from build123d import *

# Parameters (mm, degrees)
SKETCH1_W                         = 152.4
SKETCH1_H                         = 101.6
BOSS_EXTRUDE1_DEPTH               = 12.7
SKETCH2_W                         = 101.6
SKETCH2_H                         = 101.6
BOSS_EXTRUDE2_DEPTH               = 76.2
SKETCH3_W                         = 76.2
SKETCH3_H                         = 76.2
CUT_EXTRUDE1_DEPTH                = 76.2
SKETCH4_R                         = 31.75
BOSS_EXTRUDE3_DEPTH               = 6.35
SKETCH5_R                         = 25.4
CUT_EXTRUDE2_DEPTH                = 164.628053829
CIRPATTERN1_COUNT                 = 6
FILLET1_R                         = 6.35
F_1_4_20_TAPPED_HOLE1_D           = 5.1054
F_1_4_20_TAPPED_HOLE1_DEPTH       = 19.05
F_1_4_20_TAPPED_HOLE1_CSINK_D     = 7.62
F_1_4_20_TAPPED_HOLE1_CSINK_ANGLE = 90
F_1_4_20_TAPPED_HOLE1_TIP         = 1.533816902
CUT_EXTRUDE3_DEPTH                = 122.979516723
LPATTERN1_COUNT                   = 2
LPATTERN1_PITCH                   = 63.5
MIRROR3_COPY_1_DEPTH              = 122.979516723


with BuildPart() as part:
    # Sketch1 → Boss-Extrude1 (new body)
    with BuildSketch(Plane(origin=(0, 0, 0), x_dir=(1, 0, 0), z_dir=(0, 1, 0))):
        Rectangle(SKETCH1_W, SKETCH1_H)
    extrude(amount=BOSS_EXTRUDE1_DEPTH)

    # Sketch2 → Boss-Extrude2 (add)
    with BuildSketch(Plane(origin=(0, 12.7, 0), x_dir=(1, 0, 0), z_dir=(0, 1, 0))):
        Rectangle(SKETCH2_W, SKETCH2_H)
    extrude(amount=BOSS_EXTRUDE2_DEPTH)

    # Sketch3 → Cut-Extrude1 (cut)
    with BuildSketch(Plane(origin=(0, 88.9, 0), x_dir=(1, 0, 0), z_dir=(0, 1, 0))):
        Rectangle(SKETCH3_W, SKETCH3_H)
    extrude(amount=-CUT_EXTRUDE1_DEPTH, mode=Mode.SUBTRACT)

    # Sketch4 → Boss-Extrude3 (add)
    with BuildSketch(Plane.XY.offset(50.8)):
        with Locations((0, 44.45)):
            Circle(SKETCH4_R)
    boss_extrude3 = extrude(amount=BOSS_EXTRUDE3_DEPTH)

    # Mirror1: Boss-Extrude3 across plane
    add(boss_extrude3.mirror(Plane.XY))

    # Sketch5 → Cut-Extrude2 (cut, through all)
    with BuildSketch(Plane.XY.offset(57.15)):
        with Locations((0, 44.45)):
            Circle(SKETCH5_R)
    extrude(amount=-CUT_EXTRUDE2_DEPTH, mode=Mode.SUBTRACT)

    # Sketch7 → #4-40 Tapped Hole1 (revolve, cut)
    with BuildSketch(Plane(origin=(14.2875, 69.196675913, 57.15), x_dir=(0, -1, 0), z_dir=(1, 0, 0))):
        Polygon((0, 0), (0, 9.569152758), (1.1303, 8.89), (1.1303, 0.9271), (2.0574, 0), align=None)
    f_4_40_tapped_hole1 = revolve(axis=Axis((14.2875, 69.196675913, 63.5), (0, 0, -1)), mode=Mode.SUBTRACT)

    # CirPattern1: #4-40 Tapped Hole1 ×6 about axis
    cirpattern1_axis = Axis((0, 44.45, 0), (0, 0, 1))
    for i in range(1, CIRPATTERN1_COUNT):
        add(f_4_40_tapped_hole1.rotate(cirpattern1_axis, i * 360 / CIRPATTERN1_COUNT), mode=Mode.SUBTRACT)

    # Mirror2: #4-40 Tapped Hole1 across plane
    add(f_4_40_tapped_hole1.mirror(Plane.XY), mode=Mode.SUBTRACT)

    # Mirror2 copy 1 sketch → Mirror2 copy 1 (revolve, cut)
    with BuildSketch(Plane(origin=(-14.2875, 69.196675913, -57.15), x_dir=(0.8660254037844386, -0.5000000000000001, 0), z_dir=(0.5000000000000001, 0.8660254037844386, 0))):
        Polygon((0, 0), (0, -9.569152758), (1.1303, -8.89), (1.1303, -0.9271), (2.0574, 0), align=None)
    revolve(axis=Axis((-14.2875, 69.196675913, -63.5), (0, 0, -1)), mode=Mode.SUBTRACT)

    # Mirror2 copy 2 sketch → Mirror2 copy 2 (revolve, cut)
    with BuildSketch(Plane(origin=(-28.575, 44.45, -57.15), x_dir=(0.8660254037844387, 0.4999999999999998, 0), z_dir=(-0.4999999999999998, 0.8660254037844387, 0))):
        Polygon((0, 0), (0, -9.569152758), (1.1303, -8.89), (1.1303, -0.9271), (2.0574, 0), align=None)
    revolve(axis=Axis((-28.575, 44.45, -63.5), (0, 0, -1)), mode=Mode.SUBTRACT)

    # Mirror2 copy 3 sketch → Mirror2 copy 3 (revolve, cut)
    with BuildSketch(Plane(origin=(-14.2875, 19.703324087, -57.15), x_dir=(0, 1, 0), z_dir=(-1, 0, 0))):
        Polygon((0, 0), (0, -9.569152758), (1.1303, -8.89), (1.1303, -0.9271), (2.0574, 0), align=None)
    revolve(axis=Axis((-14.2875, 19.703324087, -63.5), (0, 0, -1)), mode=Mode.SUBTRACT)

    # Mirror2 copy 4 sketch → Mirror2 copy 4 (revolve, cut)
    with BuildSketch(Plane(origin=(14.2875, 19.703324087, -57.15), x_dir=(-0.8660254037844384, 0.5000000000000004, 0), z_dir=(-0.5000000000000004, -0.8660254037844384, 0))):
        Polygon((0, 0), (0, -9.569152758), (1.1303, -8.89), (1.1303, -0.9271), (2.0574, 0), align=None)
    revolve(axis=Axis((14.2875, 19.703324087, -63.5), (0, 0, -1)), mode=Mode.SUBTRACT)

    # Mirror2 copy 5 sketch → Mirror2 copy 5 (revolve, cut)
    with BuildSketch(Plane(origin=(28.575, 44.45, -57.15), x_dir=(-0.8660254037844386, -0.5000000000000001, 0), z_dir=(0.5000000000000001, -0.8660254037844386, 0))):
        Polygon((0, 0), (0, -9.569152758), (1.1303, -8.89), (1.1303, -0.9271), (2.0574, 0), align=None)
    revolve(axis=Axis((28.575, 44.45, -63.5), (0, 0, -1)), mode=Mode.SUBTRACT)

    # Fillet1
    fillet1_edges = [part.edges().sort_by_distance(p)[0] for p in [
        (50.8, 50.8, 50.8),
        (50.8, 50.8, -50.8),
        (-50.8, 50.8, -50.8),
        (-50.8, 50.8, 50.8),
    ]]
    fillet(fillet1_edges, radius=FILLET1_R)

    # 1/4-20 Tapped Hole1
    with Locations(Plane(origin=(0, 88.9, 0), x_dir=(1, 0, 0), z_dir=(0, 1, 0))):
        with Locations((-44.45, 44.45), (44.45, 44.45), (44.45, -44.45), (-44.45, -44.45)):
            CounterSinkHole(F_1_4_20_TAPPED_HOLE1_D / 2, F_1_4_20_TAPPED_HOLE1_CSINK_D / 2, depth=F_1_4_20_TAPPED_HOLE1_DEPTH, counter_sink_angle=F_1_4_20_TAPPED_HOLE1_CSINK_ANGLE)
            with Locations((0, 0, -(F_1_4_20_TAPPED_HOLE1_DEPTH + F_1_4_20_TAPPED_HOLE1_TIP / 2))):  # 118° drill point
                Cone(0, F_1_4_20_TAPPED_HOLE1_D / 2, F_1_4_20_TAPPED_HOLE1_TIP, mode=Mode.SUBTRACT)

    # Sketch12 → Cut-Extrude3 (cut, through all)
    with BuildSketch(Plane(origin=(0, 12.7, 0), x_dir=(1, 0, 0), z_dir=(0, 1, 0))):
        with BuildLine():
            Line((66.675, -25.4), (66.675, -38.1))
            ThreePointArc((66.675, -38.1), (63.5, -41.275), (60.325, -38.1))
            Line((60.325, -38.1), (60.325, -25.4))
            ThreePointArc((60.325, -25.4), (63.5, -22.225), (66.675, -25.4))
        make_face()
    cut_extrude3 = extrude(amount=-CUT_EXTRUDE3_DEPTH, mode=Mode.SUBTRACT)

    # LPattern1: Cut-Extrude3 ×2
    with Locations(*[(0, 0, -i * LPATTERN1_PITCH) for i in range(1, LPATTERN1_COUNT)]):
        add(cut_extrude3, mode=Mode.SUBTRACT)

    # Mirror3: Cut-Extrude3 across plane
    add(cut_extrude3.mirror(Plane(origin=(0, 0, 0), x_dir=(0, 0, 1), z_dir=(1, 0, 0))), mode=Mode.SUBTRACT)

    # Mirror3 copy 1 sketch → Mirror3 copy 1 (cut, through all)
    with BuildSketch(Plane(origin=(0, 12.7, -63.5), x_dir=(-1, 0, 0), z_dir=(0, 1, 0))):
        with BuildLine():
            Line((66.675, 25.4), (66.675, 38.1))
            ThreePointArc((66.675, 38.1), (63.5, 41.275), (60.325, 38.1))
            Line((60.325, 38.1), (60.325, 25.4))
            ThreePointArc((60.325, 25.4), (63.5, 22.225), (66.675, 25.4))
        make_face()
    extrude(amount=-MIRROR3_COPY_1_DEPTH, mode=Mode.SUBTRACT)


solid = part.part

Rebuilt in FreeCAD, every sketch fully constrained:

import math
import FreeCAD as App
import Part
import Sketcher
from FreeCAD import Vector
Q = App.Units.Quantity


def edges_at(feature, points):
    """Names of the edges that pass closest to the given points."""
    edges = feature.Shape.Edges
    near = lambda p: min(range(len(edges)), key=lambda i: edges[i].distToShape(Part.Vertex(*p))[0])
    return sorted({f"Edge{near(p) + 1}" for p in points})


def add_polygon(sketch, points):
    """Adds a closed chain of lines whose ends are joined by coincident constraints."""
    first, n = sketch.GeometryCount, len(points)
    for a, b in zip(points, points[1:] + points[:1]):
        sketch.addGeometry(Part.LineSegment(App.Vector(*a, 0), App.Vector(*b, 0)), False)
    for i in range(n):
        sketch.addConstraint(Sketcher.Constraint("Coincident", first + i, 2, first + (i + 1) % n, 1))

doc = App.newDocument("Part")
body = doc.addObject("PartDesign::Body", "Body")

# Sketch on XZ plane
sketch1 = body.newObject("Sketcher::SketchObject", "Sketch")
sketch1.AttachmentSupport = (doc.getObject("XZ_Plane"), [""])
sketch1.MapMode = "FlatFace"
add_polygon(sketch1, [(-76.2, -50.8), (-76.2, 50.8), (76.2, 50.8), (76.2, -50.8)])  # lines 0-3
sketch1.addConstraint([
    Sketcher.Constraint("Vertical", 0),
    Sketcher.Constraint("Horizontal", 1),
    Sketcher.Constraint("Vertical", 2),
    Sketcher.Constraint("Horizontal", 3),
    Sketcher.Constraint("Symmetric", 0, 2, 2, 2, -1, 1),
    Sketcher.Constraint("DistanceX", 1, 1, 1, 2, Q("6 in")),
    Sketcher.Constraint("DistanceY", 0, 1, 0, 2, Q("4 in")),
])
pad1 = body.newObject("PartDesign::Pad", "Pad")
pad1.Profile = sketch1
pad1.Length = Q("0.5 in")
pad1.Reversed = True

# Sketch on XZ plane
sketch2 = body.newObject("Sketcher::SketchObject", "Sketch001")
sketch2.AttachmentSupport = (doc.getObject("XZ_Plane"), [""])
sketch2.MapMode = "FlatFace"
sketch2.AttachmentOffset = App.Placement(Vector(0, 0, -0.5 * 25.4), App.Rotation())
add_polygon(sketch2, [(-50.8, -50.8), (-50.8, 50.8), (50.8, 50.8), (50.8, -50.8)])  # lines 0-3
sketch2.addConstraint([
    Sketcher.Constraint("Vertical", 0),
    Sketcher.Constraint("Horizontal", 1),
    Sketcher.Constraint("Vertical", 2),
    Sketcher.Constraint("Horizontal", 3),
    Sketcher.Constraint("Symmetric", 0, 2, 2, 2, -1, 1),
    Sketcher.Constraint("Equal", 3, 0),
    Sketcher.Constraint("DistanceX", 1, 1, 1, 2, Q("4 in")),
])
pad2 = body.newObject("PartDesign::Pad", "Pad001")
pad2.Profile = sketch2
pad2.Length = Q("3 in")
pad2.Reversed = True

# Sketch on XZ plane
sketch3 = body.newObject("Sketcher::SketchObject", "Sketch002")
sketch3.AttachmentSupport = (doc.getObject("XZ_Plane"), [""])
sketch3.MapMode = "FlatFace"
sketch3.AttachmentOffset = App.Placement(Vector(0, 0, -3.5 * 25.4), App.Rotation())
add_polygon(sketch3, [(-38.1, -38.1), (-38.1, 38.1), (38.1, 38.1), (38.1, -38.1)])  # lines 0-3
sketch3.addConstraint([
    Sketcher.Constraint("Vertical", 0),
    Sketcher.Constraint("Horizontal", 1),
    Sketcher.Constraint("Vertical", 2),
    Sketcher.Constraint("Horizontal", 3),
    Sketcher.Constraint("Symmetric", 0, 2, 2, 2, -1, 1),
    Sketcher.Constraint("Equal", 3, 0),
    Sketcher.Constraint("DistanceX", 1, 1, 1, 2, Q("3 in")),
])
pocket1 = body.newObject("PartDesign::Pocket", "Pocket")
pocket1.Profile = sketch3
pocket1.Length = Q("3 in")
pocket1.Reversed = True

# Sketch on XY plane
sketch4 = body.newObject("Sketcher::SketchObject", "Sketch003")
sketch4.AttachmentSupport = (doc.getObject("XY_Plane"), [""])
sketch4.MapMode = "FlatFace"
sketch4.AttachmentOffset = App.Placement(Vector(0, 0, 2 * 25.4), App.Rotation())
sketch4.addGeometry(Part.Circle(Vector(0, 44.45, 0), Vector(0, 0, 1), 31.75), False)
sketch4.addConstraint([
    Sketcher.Constraint("PointOnObject", 0, 3, -2),
    Sketcher.Constraint("Diameter", 0, Q("2.5 in")),
    Sketcher.Constraint("DistanceY", -1, 1, 0, 3, Q("1.75 in")),
])
pad3 = body.newObject("PartDesign::Pad", "Pad002")
pad3.Profile = sketch4
pad3.Length = Q("0.25 in")
doc.recompute()

mirrored = body.newObject("PartDesign::Mirrored", "Mirrored")
mirrored.Originals = [pad3]
mirrored.MirrorPlane = (doc.getObject("XY_Plane"), [""])
body.Tip = mirrored

# Sketch on XY plane
sketch5 = body.newObject("Sketcher::SketchObject", "Sketch004")
sketch5.AttachmentSupport = (doc.getObject("XY_Plane"), [""])
sketch5.MapMode = "FlatFace"
sketch5.AttachmentOffset = App.Placement(Vector(0, 0, 2.25 * 25.4), App.Rotation())
sketch5.addGeometry(Part.Circle(Vector(0, 44.45, 0), Vector(0, 0, 1), 25.4), False)
sketch5.addConstraint([
    Sketcher.Constraint("PointOnObject", 0, 3, -2),
    Sketcher.Constraint("Diameter", 0, Q("2 in")),
    Sketcher.Constraint("DistanceY", -1, 1, 0, 3, Q("1.75 in")),
])
pocket2 = body.newObject("PartDesign::Pocket", "Pocket001")
pocket2.Profile = sketch5
pocket2.Type = "ThroughAll"

# Sketch on YZ plane
sketch6 = body.newObject("Sketcher::SketchObject", "Sketch005")
sketch6.AttachmentSupport = (doc.getObject("YZ_Plane"), [""])
sketch6.MapMode = "FlatFace"
sketch6.AttachmentOffset = App.Placement(Vector(0, 0, 0.5625 * 25.4), App.Rotation())
add_polygon(sketch6, [(69.196676, 47.580847), (69.196676, 57.15), (67.139276, 57.15), (68.066376, 56.2229), (68.066376, 48.26)])  # lines 0-4
sketch6.addGeometry(Part.LineSegment(Vector(69.196676, 57.15, 0), Vector(69.196676, 47.580847, 0)), True)  # axis
sketch6.addConstraint([
    Sketcher.Constraint("Vertical", 0),
    Sketcher.Constraint("Horizontal", 1),
    Sketcher.Constraint("Vertical", 3),
    Sketcher.Constraint("Vertical", 5),
    Sketcher.Constraint("Coincident", 5, 1, 0, 2),
    Sketcher.Constraint("Equal", 0, 5),
    Sketcher.Constraint("Angle", 2, Q("-45 deg")),
    Sketcher.Constraint("Angle", 4, Q("-31 deg")),
    Sketcher.Constraint("DistanceY", -1, 1, 3, 2, Q("1.9 in")),
    Sketcher.Constraint("DistanceX", 1, 2, 1, 1, Q("0.081 in")),
    Sketcher.Constraint("DistanceY", -1, 1, 0, 2, Q("2.25 in")),
    Sketcher.Constraint("DistanceY", 3, 2, 3, 1, Q("0.3135 in")),
    Sketcher.Constraint("DistanceX", -1, 1, 0, 2, Q("69.196676 mm")),
])
groove = body.newObject("PartDesign::Groove", "Groove")
groove.Profile = sketch6
groove.ReferenceAxis = (sketch6, ["Axis0"])
groove.Angle = 360
doc.recompute()

datumline = body.newObject("PartDesign::Line", "DatumLine")
datumline.Placement = App.Placement(Vector(0, 44.45, 0), App.Rotation(Vector(0, 0, 1), Vector(0, 0, 1)))
polarpattern = body.newObject("PartDesign::PolarPattern", "PolarPattern")
polarpattern.Originals = [groove]
polarpattern.Axis = (datumline, [""])
polarpattern.Angle = 360
polarpattern.Occurrences = 6
body.Tip = polarpattern
doc.recompute()

mirrored2 = body.newObject("PartDesign::Mirrored", "Mirrored001")
mirrored2.Originals = [groove]
mirrored2.MirrorPlane = (doc.getObject("XY_Plane"), [""])
body.Tip = mirrored2

# Sketch on an angled plane
sketch7 = body.newObject("Sketcher::SketchObject", "Sketch006")
sketch7.Placement = App.Placement(Vector(-14.2875, 69.196676, -57.15), App.Rotation(Vector(0.866025404, -0.5, 0), Vector(0, 0, -1), Vector(0.5, 0.866025404, 0), "ZXY"))
add_polygon(sketch7, [(0, 0), (0, -9.569153), (1.1303, -8.89), (1.1303, -0.9271), (2.0574, 0)])  # lines 0-4
sketch7.addConstraint([
    Sketcher.Constraint("Vertical", 0),
    Sketcher.Constraint("Vertical", 2),
    Sketcher.Constraint("Horizontal", 4),
    Sketcher.Constraint("Coincident", 4, 2, -1, 1),
    Sketcher.Constraint("Angle", 1, Q("31 deg")),
    Sketcher.Constraint("Angle", 3, Q("45 deg")),
    Sketcher.Constraint("DistanceX", 4, 2, 4, 1, Q("0.081 in")),
    Sketcher.Constraint("DistanceY", 1, 2, -1, 1, Q("0.35 in")),
    Sketcher.Constraint("DistanceY", 2, 1, 2, 2, Q("0.3135 in")),
])
groove2 = body.newObject("PartDesign::Groove", "Groove001")
groove2.Profile = sketch7
groove2.ReferenceAxis = (sketch7, ["V_Axis"])
groove2.Angle = 360

# Sketch on an angled plane
sketch8 = body.newObject("Sketcher::SketchObject", "Sketch007")
sketch8.Placement = App.Placement(Vector(-28.575, 44.45, -57.15), App.Rotation(Vector(0.866025404, 0.5, 0), Vector(0, 0, -1), Vector(-0.5, 0.866025404, 0), "ZXY"))
add_polygon(sketch8, [(0, 0), (0, -9.569153), (1.1303, -8.89), (1.1303, -0.9271), (2.0574, 0)])  # lines 0-4
sketch8.addConstraint([
    Sketcher.Constraint("Vertical", 0),
    Sketcher.Constraint("Vertical", 2),
    Sketcher.Constraint("Horizontal", 4),
    Sketcher.Constraint("Coincident", 4, 2, -1, 1),
    Sketcher.Constraint("Angle", 1, Q("31 deg")),
    Sketcher.Constraint("Angle", 3, Q("45 deg")),
    Sketcher.Constraint("DistanceX", 4, 2, 4, 1, Q("0.081 in")),
    Sketcher.Constraint("DistanceY", 1, 2, -1, 1, Q("0.35 in")),
    Sketcher.Constraint("DistanceY", 2, 1, 2, 2, Q("0.3135 in")),
])
groove3 = body.newObject("PartDesign::Groove", "Groove002")
groove3.Profile = sketch8
groove3.ReferenceAxis = (sketch8, ["V_Axis"])
groove3.Angle = 360

# Sketch on YZ plane
sketch9 = body.newObject("Sketcher::SketchObject", "Sketch008")
sketch9.AttachmentSupport = (doc.getObject("YZ_Plane"), [""])
sketch9.MapMode = "FlatFace"
sketch9.AttachmentOffset = App.Placement(Vector(0, 0, -0.5625 * 25.4), App.Rotation())
add_polygon(sketch9, [(19.703324, -57.15), (19.703324, -47.580847), (20.833624, -48.26), (20.833624, -56.2229), (21.760724, -57.15)])  # lines 0-4
sketch9.addGeometry(Part.LineSegment(Vector(19.703324, -47.580847, 0), Vector(19.703324, -57.15, 0)), True)  # axis
sketch9.addConstraint([
    Sketcher.Constraint("Vertical", 0),
    Sketcher.Constraint("Vertical", 2),
    Sketcher.Constraint("Horizontal", 4),
    Sketcher.Constraint("Vertical", 5),
    Sketcher.Constraint("Coincident", 5, 1, 0, 2),
    Sketcher.Constraint("Horizontal", 3, 2, 5, 2),
    Sketcher.Constraint("Angle", 1, Q("-31 deg")),
    Sketcher.Constraint("Angle", 3, Q("-45 deg")),
    Sketcher.Constraint("DistanceY", 1, 2, -1, 1, Q("1.9 in")),
    Sketcher.Constraint("DistanceX", 4, 2, 4, 1, Q("0.081 in")),
    Sketcher.Constraint("DistanceY", 3, 2, -1, 1, Q("2.25 in")),
    Sketcher.Constraint("DistanceY", 2, 2, 2, 1, Q("0.3135 in")),
    Sketcher.Constraint("DistanceX", -1, 1, 0, 2, Q("19.703324 mm")),
])
groove4 = body.newObject("PartDesign::Groove", "Groove003")
groove4.Profile = sketch9
groove4.ReferenceAxis = (sketch9, ["Axis0"])
groove4.Angle = 360

# Sketch on an angled plane
sketch10 = body.newObject("Sketcher::SketchObject", "Sketch009")
sketch10.Placement = App.Placement(Vector(14.2875, 19.703324, -57.15), App.Rotation(Vector(-0.866025404, 0.5, 0), Vector(0, 0, -1), Vector(-0.5, -0.866025404, 0), "ZXY"))
add_polygon(sketch10, [(0, 0), (0, -9.569153), (1.1303, -8.89), (1.1303, -0.9271), (2.0574, 0)])  # lines 0-4
sketch10.addConstraint([
    Sketcher.Constraint("Vertical", 0),
    Sketcher.Constraint("Vertical", 2),
    Sketcher.Constraint("Horizontal", 4),
    Sketcher.Constraint("Coincident", 4, 2, -1, 1),
    Sketcher.Constraint("Angle", 1, Q("31 deg")),
    Sketcher.Constraint("Angle", 3, Q("45 deg")),
    Sketcher.Constraint("DistanceX", 4, 2, 4, 1, Q("0.081 in")),
    Sketcher.Constraint("DistanceY", 1, 2, -1, 1, Q("0.35 in")),
    Sketcher.Constraint("DistanceY", 2, 1, 2, 2, Q("0.3135 in")),
])
groove5 = body.newObject("PartDesign::Groove", "Groove004")
groove5.Profile = sketch10
groove5.ReferenceAxis = (sketch10, ["V_Axis"])
groove5.Angle = 360

# Sketch on an angled plane
sketch11 = body.newObject("Sketcher::SketchObject", "Sketch010")
sketch11.Placement = App.Placement(Vector(28.575, 44.45, -57.15), App.Rotation(Vector(-0.866025404, -0.5, 0), Vector(0, 0, -1), Vector(0.5, -0.866025404, 0), "ZXY"))
add_polygon(sketch11, [(0, 0), (0, -9.569153), (1.1303, -8.89), (1.1303, -0.9271), (2.0574, 0)])  # lines 0-4
sketch11.addConstraint([
    Sketcher.Constraint("Vertical", 0),
    Sketcher.Constraint("Vertical", 2),
    Sketcher.Constraint("Horizontal", 4),
    Sketcher.Constraint("Coincident", 4, 2, -1, 1),
    Sketcher.Constraint("Angle", 1, Q("31 deg")),
    Sketcher.Constraint("Angle", 3, Q("45 deg")),
    Sketcher.Constraint("DistanceX", 4, 2, 4, 1, Q("0.081 in")),
    Sketcher.Constraint("DistanceY", 1, 2, -1, 1, Q("0.35 in")),
    Sketcher.Constraint("DistanceY", 2, 1, 2, 2, Q("0.3135 in")),
])
groove6 = body.newObject("PartDesign::Groove", "Groove005")
groove6.Profile = sketch11
groove6.ReferenceAxis = (sketch11, ["V_Axis"])
groove6.Angle = 360
doc.recompute()

fillet = body.newObject("PartDesign::Fillet", "Fillet")
fillet.Base = (groove6, edges_at(groove6, [
    (50.8, 50.8, 50.8),
    (50.8, 50.8, -50.8),
    (-50.8, 50.8, -50.8),
    (-50.8, 50.8, 50.8),
]))
fillet.Radius = Q("0.25 in")

# Sketch on XZ plane
sketch12 = body.newObject("Sketcher::SketchObject", "Sketch011")
sketch12.AttachmentSupport = (doc.getObject("XZ_Plane"), [""])
sketch12.MapMode = "FlatFace"
sketch12.AttachmentOffset = App.Placement(Vector(0, 0, -3.5 * 25.4), App.Rotation())
sketch12.addGeometry([
    Part.Circle(Vector(-44.45, -44.45, 0), Vector(0, 0, 1), 2.5527),
    Part.Circle(Vector(44.45, -44.45, 0), Vector(0, 0, 1), 2.5527),
    Part.Circle(Vector(44.45, 44.45, 0), Vector(0, 0, 1), 2.5527),
    Part.Circle(Vector(-44.45, 44.45, 0), Vector(0, 0, 1), 2.5527),
], False)
sketch12.addConstraint([
    Sketcher.Constraint("Equal", 0, 1),
    Sketcher.Constraint("Equal", 1, 2),
    Sketcher.Constraint("Equal", 2, 3),
    Sketcher.Constraint("Symmetric", 0, 3, 2, 3, -1, 1),
    Sketcher.Constraint("Symmetric", 1, 3, 3, 3, -1, 1),
    Sketcher.Constraint("Symmetric", 0, 3, 1, 3, -2),
    Sketcher.Constraint("Diameter", 0, Q("0.201 in")),
    Sketcher.Constraint("DistanceX", 0, 3, 1, 3, Q("3.5 in")),
    Sketcher.Constraint("DistanceY", 1, 3, 2, 3, Q("3.5 in")),
])
doc.recompute()
hole = body.newObject("PartDesign::Hole", "Hole")
hole.Profile = sketch12
hole.ThreadType = "None"
hole.Diameter = Q("0.201 in")
hole.DepthType = "Dimension"
hole.Depth = Q("0.75 in")
hole.DrillPoint = "Angled"
hole.DrillPointAngle = 118
hole.HoleCutType = "Countersink"
hole.HoleCutDiameter = Q("0.3 in")
hole.HoleCutCountersinkAngle = 90
hole.Reversed = True

# Sketch on XZ plane
sketch13 = body.newObject("Sketcher::SketchObject", "Sketch012")
sketch13.AttachmentSupport = (doc.getObject("XZ_Plane"), [""])
sketch13.MapMode = "FlatFace"
sketch13.AttachmentOffset = App.Placement(Vector(0, 0, -0.5 * 25.4), App.Rotation())
sketch13.addGeometry([
    Part.LineSegment(Vector(66.675, 38.1, 0), Vector(66.675, 25.4, 0)),
    Part.ArcOfCircle(Part.Circle(Vector(63.5, 25.4, 0), Vector(0, 0, 1), 3.175), math.radians(180), math.radians(360)),
    Part.LineSegment(Vector(60.325, 25.4, 0), Vector(60.325, 38.1, 0)),
    Part.ArcOfCircle(Part.Circle(Vector(63.5, 38.1, 0), Vector(0, 0, 1), 3.175), math.radians(0), math.radians(180)),
], False)
sketch13.addConstraint([
    Sketcher.Constraint("Tangent", 0, 2, 1, 2),
    Sketcher.Constraint("Tangent", 1, 1, 2, 1),
    Sketcher.Constraint("Tangent", 2, 2, 3, 2),
    Sketcher.Constraint("Tangent", 3, 1, 0, 1),
    Sketcher.Constraint("Vertical", 0),
    Sketcher.Constraint("Vertical", 2),
    Sketcher.Constraint("DistanceY", 0, 2, 0, 1, Q("0.5 in")),
    Sketcher.Constraint("DistanceY", -1, 1, 1, 3, Q("1 in")),
    Sketcher.Constraint("Radius", 1, Q("0.125 in")),
    Sketcher.Constraint("DistanceX", -1, 1, 1, 3, Q("2.5 in")),
])
pocket3 = body.newObject("PartDesign::Pocket", "Pocket002")
pocket3.Profile = sketch13
pocket3.Type = "ThroughAll"
pocket3.Reversed = True
doc.recompute()

linearpattern = body.newObject("PartDesign::LinearPattern", "LinearPattern")
linearpattern.Originals = [pocket3]
linearpattern.Direction = (doc.getObject("Z_Axis"), [""])
linearpattern.Mode = "offset"
linearpattern.Offset = Q("2.5 in")
linearpattern.Occurrences = 2
linearpattern.Reversed = True
body.Tip = linearpattern
doc.recompute()

mirrored3 = body.newObject("PartDesign::Mirrored", "Mirrored002")
mirrored3.Originals = [pocket3]
mirrored3.MirrorPlane = (doc.getObject("YZ_Plane"), [""])
body.Tip = mirrored3

# Sketch on XZ plane
sketch14 = body.newObject("Sketcher::SketchObject", "Sketch013")
sketch14.AttachmentSupport = (doc.getObject("XZ_Plane"), [""])
sketch14.MapMode = "FlatFace"
sketch14.AttachmentOffset = App.Placement(Vector(0, 0, -0.5 * 25.4), App.Rotation())
sketch14.addGeometry([
    Part.LineSegment(Vector(-66.675, -38.1, 0), Vector(-66.675, -25.4, 0)),
    Part.ArcOfCircle(Part.Circle(Vector(-63.5, -25.4, 0), Vector(0, 0, 1), 3.175), math.radians(0), math.radians(180)),
    Part.LineSegment(Vector(-60.325, -25.4, 0), Vector(-60.325, -38.1, 0)),
    Part.ArcOfCircle(Part.Circle(Vector(-63.5, -38.1, 0), Vector(0, 0, 1), 3.175), math.radians(180), math.radians(360)),
], False)
sketch14.addConstraint([
    Sketcher.Constraint("Tangent", 0, 2, 1, 2),
    Sketcher.Constraint("Tangent", 1, 1, 2, 1),
    Sketcher.Constraint("Tangent", 2, 2, 3, 2),
    Sketcher.Constraint("Tangent", 3, 1, 0, 1),
    Sketcher.Constraint("Vertical", 0),
    Sketcher.Constraint("Vertical", 2),
    Sketcher.Constraint("DistanceY", 0, 1, 0, 2, Q("0.5 in")),
    Sketcher.Constraint("DistanceY", 1, 3, -1, 1, Q("1 in")),
    Sketcher.Constraint("Radius", 1, Q("0.125 in")),
    Sketcher.Constraint("DistanceX", 1, 3, -1, 1, Q("2.5 in")),
])
pocket4 = body.newObject("PartDesign::Pocket", "Pocket003")
pocket4.Profile = sketch14
pocket4.Type = "ThroughAll"
pocket4.Reversed = True

doc.recompute()
